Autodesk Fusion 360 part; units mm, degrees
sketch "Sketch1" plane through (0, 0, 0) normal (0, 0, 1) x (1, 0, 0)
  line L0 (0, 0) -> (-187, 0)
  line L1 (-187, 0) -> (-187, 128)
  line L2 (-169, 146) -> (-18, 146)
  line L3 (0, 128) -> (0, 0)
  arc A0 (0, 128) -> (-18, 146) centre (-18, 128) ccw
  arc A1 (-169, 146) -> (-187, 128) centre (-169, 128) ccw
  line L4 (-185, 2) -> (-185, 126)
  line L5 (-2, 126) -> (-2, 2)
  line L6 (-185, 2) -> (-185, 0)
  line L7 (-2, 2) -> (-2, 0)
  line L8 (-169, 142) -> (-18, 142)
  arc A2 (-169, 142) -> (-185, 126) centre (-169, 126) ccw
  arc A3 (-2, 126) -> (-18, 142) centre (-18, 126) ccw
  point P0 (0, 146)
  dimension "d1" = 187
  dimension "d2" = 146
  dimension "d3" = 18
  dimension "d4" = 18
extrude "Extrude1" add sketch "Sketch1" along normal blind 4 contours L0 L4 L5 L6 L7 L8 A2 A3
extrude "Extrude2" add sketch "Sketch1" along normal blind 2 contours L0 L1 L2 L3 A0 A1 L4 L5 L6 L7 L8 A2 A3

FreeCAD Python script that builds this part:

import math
import FreeCAD as App
import Part
import Sketcher
from FreeCAD import Vector
Q = App.Units.Quantity

doc = App.newDocument("Part")
body = doc.addObject("PartDesign::Body", "Body")

# Sketch on XY plane
sketch1 = body.newObject("Sketcher::SketchObject", "Sketch")
sketch1.AttachmentSupport = (doc.getObject("XY_Plane"), [""])
sketch1.MapMode = "FlatFace"
sketch1.addGeometry(Part.LineSegment(Vector(-185, 0, 0), Vector(-2, 0, 0)), False)
sketch1.addGeometry(Part.LineSegment(Vector(-2, 0, 0), Vector(-2, 126, 0)), False)
sketch1.addGeometry(Part.ArcOfCircle(Part.Circle(Vector(-18, 126, 0), Vector(0, 0, 1), 16), math.radians(0), math.radians(90)), False)
sketch1.addGeometry(Part.LineSegment(Vector(-18, 142, 0), Vector(-169, 142, 0)), False)
sketch1.addGeometry(Part.ArcOfCircle(Part.Circle(Vector(-169, 126, 0), Vector(0, 0, 1), 16), math.radians(90), math.radians(180)), False)
sketch1.addGeometry(Part.LineSegment(Vector(-185, 126, 0), Vector(-185, 0, 0)), False)
sketch1.addConstraint(Sketcher.Constraint("Coincident", 0, 2, 1, 1))
sketch1.addConstraint(Sketcher.Constraint("Tangent", 1, 2, 2, 1))
sketch1.addConstraint(Sketcher.Constraint("Tangent", 2, 2, 3, 1))
sketch1.addConstraint(Sketcher.Constraint("Tangent", 3, 2, 4, 1))
sketch1.addConstraint(Sketcher.Constraint("Tangent", 4, 2, 5, 1))
sketch1.addConstraint(Sketcher.Constraint("Coincident", 5, 2, 0, 1))
sketch1.addConstraint(Sketcher.Constraint("Horizontal", 0))
sketch1.addConstraint(Sketcher.Constraint("Vertical", 1))
sketch1.addConstraint(Sketcher.Constraint("Horizontal", 3))
sketch1.addConstraint(Sketcher.Constraint("Vertical", 5))
sketch1.addConstraint(Sketcher.Constraint("Equal", 2, 4))
sketch1.addConstraint(Sketcher.Constraint("PointOnObject", 0, 2, -1))
sketch1.addConstraint(Sketcher.Constraint("DistanceX", 2, 3, -1, 1, Q("18 mm")))
sketch1.addConstraint(Sketcher.Constraint("Radius", 2, Q("16 mm")))
sketch1.addConstraint(Sketcher.Constraint("DistanceX", 0, 1, 0, 2, Q("183 mm")))
sketch1.addConstraint(Sketcher.Constraint("DistanceY", 1, 1, 1, 2, Q("126 mm")))
pad1 = body.newObject("PartDesign::Pad", "Pad")
pad1.Profile = sketch1
pad1.Length = 4

# Sketch on XY plane
sketch2 = body.newObject("Sketcher::SketchObject", "Sketch001")
sketch2.AttachmentSupport = (doc.getObject("XY_Plane"), [""])
sketch2.MapMode = "FlatFace"
sketch2.addGeometry(Part.LineSegment(Vector(-2, 0, 0), Vector(0, 0, 0)), False)
sketch2.addGeometry(Part.LineSegment(Vector(0, 0, 0), Vector(0, 128, 0)), False)
sketch2.addGeometry(Part.ArcOfCircle(Part.Circle(Vector(-18, 128, 0), Vector(0, 0, 1), 18), math.radians(0), math.radians(90)), False)
sketch2.addGeometry(Part.LineSegment(Vector(-18, 146, 0), Vector(-169, 146, 0)), False)
sketch2.addGeometry(Part.ArcOfCircle(Part.Circle(Vector(-169, 128, 0), Vector(0, 0, 1), 18), math.radians(90), math.radians(180)), False)
sketch2.addGeometry(Part.LineSegment(Vector(-187, 128, 0), Vector(-187, 0, 0)), False)
sketch2.addGeometry(Part.LineSegment(Vector(-187, 0, 0), Vector(-185, 0, 0)), False)
sketch2.addGeometry(Part.LineSegment(Vector(-185, 0, 0), Vector(-185, 126, 0)), False)
sketch2.addGeometry(Part.ArcOfCircle(Part.Circle(Vector(-169, 126, 0), Vector(0, 0, 1), 16), math.radians(90), math.radians(180)), False)
sketch2.addGeometry(Part.LineSegment(Vector(-169, 142, 0), Vector(-18, 142, 0)), False)
sketch2.addGeometry(Part.ArcOfCircle(Part.Circle(Vector(-18, 126, 0), Vector(0, 0, 1), 16), math.radians(0), math.radians(90)), False)
sketch2.addGeometry(Part.LineSegment(Vector(-2, 126, 0), Vector(-2, 0, 0)), False)
sketch2.addConstraint(Sketcher.Constraint("Coincident", 0, 2, 1, 1))
sketch2.addConstraint(Sketcher.Constraint("Tangent", 1, 2, 2, 1))
sketch2.addConstraint(Sketcher.Constraint("Tangent", 2, 2, 3, 1))
sketch2.addConstraint(Sketcher.Constraint("Tangent", 3, 2, 4, 1))
sketch2.addConstraint(Sketcher.Constraint("Tangent", 4, 2, 5, 1))
sketch2.addConstraint(Sketcher.Constraint("Coincident", 5, 2, 6, 1))
sketch2.addConstraint(Sketcher.Constraint("Coincident", 6, 2, 7, 1))
sketch2.addConstraint(Sketcher.Constraint("Tangent", 7, 2, 8, 2))
sketch2.addConstraint(Sketcher.Constraint("Tangent", 8, 1, 9, 1))
sketch2.addConstraint(Sketcher.Constraint("Tangent", 9, 2, 10, 2))
sketch2.addConstraint(Sketcher.Constraint("Tangent", 10, 1, 11, 1))
sketch2.addConstraint(Sketcher.Constraint("Coincident", 11, 2, 0, 1))
sketch2.addConstraint(Sketcher.Constraint("Horizontal", 0))
sketch2.addConstraint(Sketcher.Constraint("Vertical", 1))
sketch2.addConstraint(Sketcher.Constraint("Horizontal", 3))
sketch2.addConstraint(Sketcher.Constraint("Vertical", 5))
sketch2.addConstraint(Sketcher.Constraint("Horizontal", 6))
sketch2.addConstraint(Sketcher.Constraint("Vertical", 7))
sketch2.addConstraint(Sketcher.Constraint("Horizontal", 9))
sketch2.addConstraint(Sketcher.Constraint("Vertical", 11))
sketch2.addConstraint(Sketcher.Constraint("Coincident", 0, 2, -1, 1))
sketch2.addConstraint(Sketcher.Constraint("Equal", 2, 4))
sketch2.addConstraint(Sketcher.Constraint("Equal", 8, 10))
sketch2.addConstraint(Sketcher.Constraint("PointOnObject", 5, 2, -1))
sketch2.addConstraint(Sketcher.Constraint("Vertical", 4, 3, 8, 3))
sketch2.addConstraint(Sketcher.Constraint("Vertical", 2, 3, 10, 3))
sketch2.addConstraint(Sketcher.Constraint("Radius", 2, Q("18 mm")))
sketch2.addConstraint(Sketcher.Constraint("DistanceY", -1, 1, 2, 2, Q("146 mm")))
sketch2.addConstraint(Sketcher.Constraint("DistanceX", 4, 2, -1, 1, Q("187 mm")))
sketch2.addConstraint(Sketcher.Constraint("Radius", 8, Q("16 mm")))
sketch2.addConstraint(Sketcher.Constraint("DistanceY", 7, 1, 7, 2, Q("126 mm")))
pad2 = body.newObject("PartDesign::Pad", "Pad001")
pad2.Profile = sketch2
pad2.Length = 2

doc.recompute()
